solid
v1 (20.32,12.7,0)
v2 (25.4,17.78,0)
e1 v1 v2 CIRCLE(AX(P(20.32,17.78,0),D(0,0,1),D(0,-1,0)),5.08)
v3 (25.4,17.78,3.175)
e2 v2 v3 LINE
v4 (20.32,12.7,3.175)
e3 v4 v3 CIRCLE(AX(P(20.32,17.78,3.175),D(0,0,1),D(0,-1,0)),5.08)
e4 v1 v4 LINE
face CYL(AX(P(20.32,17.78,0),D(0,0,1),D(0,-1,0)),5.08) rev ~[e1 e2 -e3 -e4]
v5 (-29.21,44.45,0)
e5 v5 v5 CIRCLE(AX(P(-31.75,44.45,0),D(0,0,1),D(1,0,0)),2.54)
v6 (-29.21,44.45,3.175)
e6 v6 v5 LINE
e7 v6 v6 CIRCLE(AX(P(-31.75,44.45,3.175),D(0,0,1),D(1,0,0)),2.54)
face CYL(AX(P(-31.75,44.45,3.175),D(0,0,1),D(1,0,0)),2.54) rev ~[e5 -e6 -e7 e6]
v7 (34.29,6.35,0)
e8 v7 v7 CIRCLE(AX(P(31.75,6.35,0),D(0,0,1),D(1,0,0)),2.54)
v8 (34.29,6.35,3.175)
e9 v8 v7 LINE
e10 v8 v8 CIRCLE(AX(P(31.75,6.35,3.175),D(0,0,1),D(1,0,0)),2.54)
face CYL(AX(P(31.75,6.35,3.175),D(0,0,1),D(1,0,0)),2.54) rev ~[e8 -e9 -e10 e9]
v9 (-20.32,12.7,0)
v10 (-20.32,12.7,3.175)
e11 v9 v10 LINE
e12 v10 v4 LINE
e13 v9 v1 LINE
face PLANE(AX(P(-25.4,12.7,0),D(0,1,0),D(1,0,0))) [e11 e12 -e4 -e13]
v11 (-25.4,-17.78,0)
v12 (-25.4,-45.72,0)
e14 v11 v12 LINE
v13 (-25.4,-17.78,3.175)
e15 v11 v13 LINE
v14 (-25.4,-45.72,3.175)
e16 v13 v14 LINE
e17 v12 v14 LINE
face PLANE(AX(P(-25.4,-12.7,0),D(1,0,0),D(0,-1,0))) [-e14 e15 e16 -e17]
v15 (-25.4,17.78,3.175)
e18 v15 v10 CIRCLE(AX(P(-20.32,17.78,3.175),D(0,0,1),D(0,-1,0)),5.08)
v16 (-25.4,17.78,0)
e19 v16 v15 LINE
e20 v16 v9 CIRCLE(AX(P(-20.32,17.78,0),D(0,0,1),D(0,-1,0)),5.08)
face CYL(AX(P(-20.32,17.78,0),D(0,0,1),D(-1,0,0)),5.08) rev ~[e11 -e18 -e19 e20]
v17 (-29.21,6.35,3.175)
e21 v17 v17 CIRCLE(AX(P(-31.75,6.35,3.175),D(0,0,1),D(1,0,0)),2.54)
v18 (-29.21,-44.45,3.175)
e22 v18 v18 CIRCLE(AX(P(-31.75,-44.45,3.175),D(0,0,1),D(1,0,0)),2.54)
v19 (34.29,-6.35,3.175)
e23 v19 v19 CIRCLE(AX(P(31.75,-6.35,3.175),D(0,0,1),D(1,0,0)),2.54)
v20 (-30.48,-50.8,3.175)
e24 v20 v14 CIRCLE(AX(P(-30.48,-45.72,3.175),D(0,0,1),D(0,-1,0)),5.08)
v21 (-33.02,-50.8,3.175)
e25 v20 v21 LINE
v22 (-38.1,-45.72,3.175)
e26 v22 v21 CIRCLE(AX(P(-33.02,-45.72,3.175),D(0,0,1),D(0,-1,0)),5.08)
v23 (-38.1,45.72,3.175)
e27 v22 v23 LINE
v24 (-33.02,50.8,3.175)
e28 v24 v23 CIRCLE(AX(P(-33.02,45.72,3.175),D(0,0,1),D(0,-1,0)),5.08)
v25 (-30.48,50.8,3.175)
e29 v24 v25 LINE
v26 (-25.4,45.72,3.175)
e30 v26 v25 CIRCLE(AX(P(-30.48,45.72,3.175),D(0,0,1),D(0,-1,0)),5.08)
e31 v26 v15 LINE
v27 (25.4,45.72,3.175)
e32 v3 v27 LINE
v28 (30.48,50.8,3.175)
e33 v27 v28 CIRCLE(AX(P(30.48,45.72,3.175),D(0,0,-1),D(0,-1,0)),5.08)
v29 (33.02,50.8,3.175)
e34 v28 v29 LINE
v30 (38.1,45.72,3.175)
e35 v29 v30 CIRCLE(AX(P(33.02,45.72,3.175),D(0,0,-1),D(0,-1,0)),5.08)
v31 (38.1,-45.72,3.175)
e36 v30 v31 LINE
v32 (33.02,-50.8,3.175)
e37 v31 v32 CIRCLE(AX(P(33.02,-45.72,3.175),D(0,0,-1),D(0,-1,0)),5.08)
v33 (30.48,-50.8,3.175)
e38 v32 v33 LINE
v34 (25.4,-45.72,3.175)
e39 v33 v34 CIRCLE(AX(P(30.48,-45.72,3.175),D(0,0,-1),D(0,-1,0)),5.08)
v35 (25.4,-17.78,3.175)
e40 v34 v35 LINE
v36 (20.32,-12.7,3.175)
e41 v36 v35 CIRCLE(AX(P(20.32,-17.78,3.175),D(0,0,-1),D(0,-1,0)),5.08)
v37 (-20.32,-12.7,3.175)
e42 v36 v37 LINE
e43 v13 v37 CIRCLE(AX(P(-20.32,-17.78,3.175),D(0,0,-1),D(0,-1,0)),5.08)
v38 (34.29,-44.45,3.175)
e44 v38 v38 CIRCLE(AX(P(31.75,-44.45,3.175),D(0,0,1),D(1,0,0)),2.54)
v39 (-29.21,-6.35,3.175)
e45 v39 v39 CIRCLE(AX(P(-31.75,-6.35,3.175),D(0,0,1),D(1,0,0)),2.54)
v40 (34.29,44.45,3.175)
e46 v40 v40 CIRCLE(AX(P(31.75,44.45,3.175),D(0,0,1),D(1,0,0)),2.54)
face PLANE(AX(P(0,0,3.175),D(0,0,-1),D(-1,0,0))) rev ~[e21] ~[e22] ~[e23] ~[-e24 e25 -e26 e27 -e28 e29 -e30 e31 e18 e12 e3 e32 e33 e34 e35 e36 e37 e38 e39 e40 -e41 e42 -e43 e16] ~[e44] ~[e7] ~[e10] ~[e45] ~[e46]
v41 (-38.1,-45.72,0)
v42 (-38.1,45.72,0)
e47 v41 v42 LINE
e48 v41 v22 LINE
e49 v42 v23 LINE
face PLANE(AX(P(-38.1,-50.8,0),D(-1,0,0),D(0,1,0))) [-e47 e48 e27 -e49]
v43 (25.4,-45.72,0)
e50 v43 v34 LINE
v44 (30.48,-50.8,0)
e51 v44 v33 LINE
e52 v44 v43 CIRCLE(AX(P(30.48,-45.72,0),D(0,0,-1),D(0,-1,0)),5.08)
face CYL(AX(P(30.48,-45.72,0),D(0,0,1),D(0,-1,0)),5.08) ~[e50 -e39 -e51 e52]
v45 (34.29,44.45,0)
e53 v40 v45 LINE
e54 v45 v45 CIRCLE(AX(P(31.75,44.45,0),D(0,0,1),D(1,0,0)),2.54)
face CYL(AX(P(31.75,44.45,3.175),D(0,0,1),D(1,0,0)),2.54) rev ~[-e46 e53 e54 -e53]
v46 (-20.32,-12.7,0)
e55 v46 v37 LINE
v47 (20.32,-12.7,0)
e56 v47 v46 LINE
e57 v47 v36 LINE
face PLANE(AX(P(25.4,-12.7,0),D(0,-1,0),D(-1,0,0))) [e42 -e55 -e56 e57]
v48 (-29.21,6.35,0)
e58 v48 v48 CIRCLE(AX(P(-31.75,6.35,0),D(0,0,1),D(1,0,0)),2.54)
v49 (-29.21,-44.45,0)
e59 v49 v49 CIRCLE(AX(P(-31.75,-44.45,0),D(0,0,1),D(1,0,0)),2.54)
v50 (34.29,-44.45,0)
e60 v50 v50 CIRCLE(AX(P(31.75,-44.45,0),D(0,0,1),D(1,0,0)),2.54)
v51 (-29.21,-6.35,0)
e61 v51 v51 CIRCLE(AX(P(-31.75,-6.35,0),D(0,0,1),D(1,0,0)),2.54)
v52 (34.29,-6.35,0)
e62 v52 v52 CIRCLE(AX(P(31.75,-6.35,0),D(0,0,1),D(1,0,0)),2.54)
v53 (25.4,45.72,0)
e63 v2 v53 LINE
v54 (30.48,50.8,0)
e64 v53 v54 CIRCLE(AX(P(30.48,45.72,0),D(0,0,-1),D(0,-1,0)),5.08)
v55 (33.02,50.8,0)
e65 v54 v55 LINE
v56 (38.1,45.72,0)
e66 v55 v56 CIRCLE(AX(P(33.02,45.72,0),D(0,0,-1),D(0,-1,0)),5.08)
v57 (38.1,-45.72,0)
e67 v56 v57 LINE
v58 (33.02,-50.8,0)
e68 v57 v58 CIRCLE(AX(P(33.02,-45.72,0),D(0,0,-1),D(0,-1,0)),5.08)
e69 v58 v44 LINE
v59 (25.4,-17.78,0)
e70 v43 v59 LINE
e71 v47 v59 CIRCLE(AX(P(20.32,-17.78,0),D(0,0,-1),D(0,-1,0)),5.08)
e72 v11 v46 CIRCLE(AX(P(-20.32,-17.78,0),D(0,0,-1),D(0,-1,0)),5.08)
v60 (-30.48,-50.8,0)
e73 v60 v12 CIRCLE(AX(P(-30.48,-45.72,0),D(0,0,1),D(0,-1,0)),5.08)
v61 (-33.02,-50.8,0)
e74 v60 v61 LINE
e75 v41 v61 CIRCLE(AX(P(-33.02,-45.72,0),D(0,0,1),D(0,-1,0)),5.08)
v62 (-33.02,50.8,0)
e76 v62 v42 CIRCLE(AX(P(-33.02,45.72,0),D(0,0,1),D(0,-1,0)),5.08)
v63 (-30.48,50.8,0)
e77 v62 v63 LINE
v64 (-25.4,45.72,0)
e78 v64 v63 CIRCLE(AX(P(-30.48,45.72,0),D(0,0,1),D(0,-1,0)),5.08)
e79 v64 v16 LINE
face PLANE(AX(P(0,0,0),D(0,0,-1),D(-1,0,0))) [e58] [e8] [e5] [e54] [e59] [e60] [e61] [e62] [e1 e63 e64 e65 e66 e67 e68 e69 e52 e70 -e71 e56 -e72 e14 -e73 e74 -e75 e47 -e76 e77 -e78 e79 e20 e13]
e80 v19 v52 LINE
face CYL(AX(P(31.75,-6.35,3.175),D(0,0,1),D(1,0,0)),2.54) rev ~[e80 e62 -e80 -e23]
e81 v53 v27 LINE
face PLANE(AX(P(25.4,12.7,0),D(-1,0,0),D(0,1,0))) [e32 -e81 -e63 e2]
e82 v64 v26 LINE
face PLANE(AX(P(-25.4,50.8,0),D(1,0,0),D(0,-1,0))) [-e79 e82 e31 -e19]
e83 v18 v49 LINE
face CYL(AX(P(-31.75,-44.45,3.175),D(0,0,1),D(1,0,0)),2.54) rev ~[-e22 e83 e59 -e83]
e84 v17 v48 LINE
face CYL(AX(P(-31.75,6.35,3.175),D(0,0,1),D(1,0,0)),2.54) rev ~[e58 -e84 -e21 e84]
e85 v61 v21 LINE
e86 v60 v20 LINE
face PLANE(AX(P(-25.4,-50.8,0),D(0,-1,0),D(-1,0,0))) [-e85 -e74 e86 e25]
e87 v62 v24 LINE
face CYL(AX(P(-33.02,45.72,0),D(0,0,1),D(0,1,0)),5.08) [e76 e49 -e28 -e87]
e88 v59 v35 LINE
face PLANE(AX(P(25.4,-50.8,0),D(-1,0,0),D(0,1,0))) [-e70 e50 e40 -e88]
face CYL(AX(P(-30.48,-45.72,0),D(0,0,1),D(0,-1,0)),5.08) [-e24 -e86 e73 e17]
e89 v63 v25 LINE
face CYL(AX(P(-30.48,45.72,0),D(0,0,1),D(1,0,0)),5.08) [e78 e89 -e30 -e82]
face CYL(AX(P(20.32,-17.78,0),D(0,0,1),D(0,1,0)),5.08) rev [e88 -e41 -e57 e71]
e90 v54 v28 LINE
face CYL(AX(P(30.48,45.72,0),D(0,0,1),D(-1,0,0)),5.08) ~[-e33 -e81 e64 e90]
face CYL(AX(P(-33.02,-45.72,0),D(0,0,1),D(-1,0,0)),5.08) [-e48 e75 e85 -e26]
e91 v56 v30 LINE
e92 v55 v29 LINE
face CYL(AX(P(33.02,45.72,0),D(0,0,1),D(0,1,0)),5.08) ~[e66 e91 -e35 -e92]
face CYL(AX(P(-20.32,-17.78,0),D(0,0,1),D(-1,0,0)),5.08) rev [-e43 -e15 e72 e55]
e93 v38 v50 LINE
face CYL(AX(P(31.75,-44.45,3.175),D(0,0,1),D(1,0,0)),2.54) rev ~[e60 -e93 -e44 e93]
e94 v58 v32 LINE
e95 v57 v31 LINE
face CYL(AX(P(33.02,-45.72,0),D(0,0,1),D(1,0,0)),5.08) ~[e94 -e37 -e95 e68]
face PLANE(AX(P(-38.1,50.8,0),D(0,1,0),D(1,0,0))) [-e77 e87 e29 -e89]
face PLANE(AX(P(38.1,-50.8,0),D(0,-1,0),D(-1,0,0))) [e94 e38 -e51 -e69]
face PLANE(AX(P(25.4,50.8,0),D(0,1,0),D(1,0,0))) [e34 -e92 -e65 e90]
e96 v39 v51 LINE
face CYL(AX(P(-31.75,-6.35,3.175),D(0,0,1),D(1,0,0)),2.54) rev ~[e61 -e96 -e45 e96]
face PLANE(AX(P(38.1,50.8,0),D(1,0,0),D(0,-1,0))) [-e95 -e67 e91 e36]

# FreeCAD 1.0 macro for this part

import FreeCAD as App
import Part
import Sketcher

V = App.Vector
Q = App.Units.Quantity


def edges_at(feature, points):
    """Names of the edges that pass closest to the given points."""
    edges = feature.Shape.Edges
    near = lambda p: min(range(len(edges)), key=lambda i: edges[i].distToShape(Part.Vertex(*p))[0])
    return sorted({f"Edge{near(p) + 1}" for p in points})

doc = App.newDocument("Part")
body = doc.addObject("PartDesign::Body", "Body")

sketch1 = body.newObject("Sketcher::SketchObject", "Sketch")
sketch1.AttachmentSupport = (doc.getObject("XY_Plane"), [""])
sketch1.MapMode = "FlatFace"
sketch1.addGeometry(Part.LineSegment(V(-25.4, 50.8, 0), V(-38.1, 50.8, 0)), False)
sketch1.addGeometry(Part.LineSegment(V(-38.1, 50.8, 0), V(-38.1, -50.8, 0)), False)
sketch1.addGeometry(Part.LineSegment(V(-38.1, -50.8, 0), V(-25.4, -50.8, 0)), False)
sketch1.addGeometry(Part.LineSegment(V(-25.4, -50.8, 0), V(-25.4, -12.7, 0)), False)
sketch1.addGeometry(Part.LineSegment(V(-25.4, -12.7, 0), V(25.4, -12.7, 0)), False)
sketch1.addGeometry(Part.LineSegment(V(25.4, -12.7, 0), V(25.4, -50.8, 0)), False)
sketch1.addGeometry(Part.LineSegment(V(25.4, -50.8, 0), V(38.1, -50.8, 0)), False)
sketch1.addGeometry(Part.LineSegment(V(38.1, -50.8, 0), V(38.1, 50.8, 0)), False)
sketch1.addGeometry(Part.LineSegment(V(38.1, 50.8, 0), V(25.4, 50.8, 0)), False)
sketch1.addGeometry(Part.LineSegment(V(25.4, 50.8, 0), V(25.4, 12.7, 0)), False)
sketch1.addGeometry(Part.LineSegment(V(25.4, 12.7, 0), V(-25.4, 12.7, 0)), False)
sketch1.addGeometry(Part.LineSegment(V(-25.4, 12.7, 0), V(-25.4, 50.8, 0)), False)
sketch1.addConstraint(Sketcher.Constraint("Coincident", 0, 2, 1, 1))
sketch1.addConstraint(Sketcher.Constraint("Coincident", 1, 2, 2, 1))
sketch1.addConstraint(Sketcher.Constraint("Coincident", 2, 2, 3, 1))
sketch1.addConstraint(Sketcher.Constraint("Coincident", 3, 2, 4, 1))
sketch1.addConstraint(Sketcher.Constraint("Coincident", 4, 2, 5, 1))
sketch1.addConstraint(Sketcher.Constraint("Coincident", 5, 2, 6, 1))
sketch1.addConstraint(Sketcher.Constraint("Coincident", 6, 2, 7, 1))
sketch1.addConstraint(Sketcher.Constraint("Coincident", 7, 2, 8, 1))
sketch1.addConstraint(Sketcher.Constraint("Coincident", 8, 2, 9, 1))
sketch1.addConstraint(Sketcher.Constraint("Coincident", 9, 2, 10, 1))
sketch1.addConstraint(Sketcher.Constraint("Coincident", 10, 2, 11, 1))
sketch1.addConstraint(Sketcher.Constraint("Coincident", 11, 2, 0, 1))
sketch1.addConstraint(Sketcher.Constraint("Horizontal", 0))
sketch1.addConstraint(Sketcher.Constraint("Vertical", 1))
sketch1.addConstraint(Sketcher.Constraint("Horizontal", 2))
sketch1.addConstraint(Sketcher.Constraint("Vertical", 3))
sketch1.addConstraint(Sketcher.Constraint("Horizontal", 4))
sketch1.addConstraint(Sketcher.Constraint("Vertical", 5))
sketch1.addConstraint(Sketcher.Constraint("Horizontal", 6))
sketch1.addConstraint(Sketcher.Constraint("Vertical", 7))
sketch1.addConstraint(Sketcher.Constraint("Horizontal", 8))
sketch1.addConstraint(Sketcher.Constraint("Vertical", 9))
sketch1.addConstraint(Sketcher.Constraint("Horizontal", 10))
sketch1.addConstraint(Sketcher.Constraint("Vertical", 11))
sketch1.addConstraint(Sketcher.Constraint("Symmetric", 0, 2, 6, 2, -1, 1))
sketch1.addConstraint(Sketcher.Constraint("Symmetric", 2, 2, 8, 2, -1, 1))
sketch1.addConstraint(Sketcher.Constraint("Symmetric", 4, 2, 10, 2, -1, 1))
sketch1.addConstraint(Sketcher.Constraint("Symmetric", 2, 2, 5, 2, -2))
sketch1.addConstraint(Sketcher.Constraint("DistanceX", 4, 1, 4, 2, Q("2 in")))
sketch1.addConstraint(Sketcher.Constraint("DistanceY", 1, 2, 1, 1, Q("4 in")))
sketch1.addConstraint(Sketcher.Constraint("DistanceX", 0, 2, 0, 1, Q("0.5 in")))
sketch1.addConstraint(Sketcher.Constraint("DistanceY", 3, 1, 3, 2, Q("1.5 in")))
pad1 = body.newObject("PartDesign::Pad", "Pad")
pad1.Profile = sketch1
pad1.Length = Q("0.125 in")

sketch2 = body.newObject("Sketcher::SketchObject", "Sketch001")
sketch2.AttachmentSupport = (doc.getObject("XY_Plane"), [""])
sketch2.MapMode = "FlatFace"
sketch2.AttachmentOffset = App.Placement(V(0, 0, 0.125 * 25.4), App.Rotation())
sketch2.addGeometry(Part.Circle(V(-31.75, 44.45, 0), V(0, 0, 1), 2.54), False)
sketch2.addGeometry(Part.Circle(V(-31.75, 6.35, 0), V(0, 0, 1), 2.54), False)
sketch2.addGeometry(Part.Circle(V(31.75, 6.35, 0), V(0, 0, 1), 2.54), False)
sketch2.addGeometry(Part.Circle(V(31.75, 44.45, 0), V(0, 0, 1), 2.54), False)
sketch2.addGeometry(Part.Circle(V(-31.75, -6.35, 0), V(0, 0, 1), 2.54), False)
sketch2.addGeometry(Part.Circle(V(31.75, -6.35, 0), V(0, 0, 1), 2.54), False)
sketch2.addGeometry(Part.Circle(V(31.75, -44.45, 0), V(0, 0, 1), 2.54), False)
sketch2.addGeometry(Part.Circle(V(-31.75, -44.45, 0), V(0, 0, 1), 2.54), False)
sketch2.addConstraint(Sketcher.Constraint("Equal", 0, 1))
sketch2.addConstraint(Sketcher.Constraint("Equal", 1, 2))
sketch2.addConstraint(Sketcher.Constraint("Equal", 2, 3))
sketch2.addConstraint(Sketcher.Constraint("Equal", 3, 4))
sketch2.addConstraint(Sketcher.Constraint("Equal", 4, 5))
sketch2.addConstraint(Sketcher.Constraint("Equal", 5, 6))
sketch2.addConstraint(Sketcher.Constraint("Equal", 6, 7))
sketch2.addConstraint(Sketcher.Constraint("Symmetric", 2, 3, 4, 3, -1, 1))
sketch2.addConstraint(Sketcher.Constraint("Symmetric", 1, 3, 5, 3, -1, 1))
sketch2.addConstraint(Sketcher.Constraint("Symmetric", 0, 3, 6, 3, -1, 1))
sketch2.addConstraint(Sketcher.Constraint("Symmetric", 3, 3, 7, 3, -1, 1))
sketch2.addConstraint(Sketcher.Constraint("Symmetric", 1, 3, 2, 3, -2))
sketch2.addConstraint(Sketcher.Constraint("Symmetric", 0, 3, 3, 3, -2))
sketch2.addConstraint(Sketcher.Constraint("Vertical", 0, 3, 1, 3))
sketch2.addConstraint(Sketcher.Constraint("Diameter", 0, Q("0.2 in")))
sketch2.addConstraint(Sketcher.Constraint("DistanceY", 4, 3, 0, 3, Q("2 in")))
sketch2.addConstraint(Sketcher.Constraint("DistanceY", 1, 3, 0, 3, Q("1.5 in")))
sketch2.addConstraint(Sketcher.Constraint("DistanceX", 1, 3, 2, 3, Q("2.5 in")))
pocket1 = body.newObject("PartDesign::Pocket", "Pocket")
pocket1.Profile = sketch2
pocket1.Type = "ThroughAll"
doc.recompute()

fillet = body.newObject("PartDesign::Fillet", "Fillet")
fillet.Base = (pocket1, edges_at(pocket1, [
    (25.4, -12.7, 1.587),
    (-25.4, -12.7, 1.587),
    (-25.4, 12.7, 1.587),
    (25.4, 12.7, 1.587),
]))
fillet.Radius = Q("0.2 in")
doc.recompute()

fillet2 = body.newObject("PartDesign::Fillet", "Fillet001")
fillet2.Base = (fillet, edges_at(fillet, [
    (38.1, 50.8, 1.587),
    (38.1, -50.8, 1.587),
    (25.4, -50.8, 1.587),
    (-25.4, -50.8, 1.587),
    (-38.1, -50.8, 1.587),
    (-38.1, 50.8, 1.587),
    (-25.4, 50.8, 1.587),
    (25.4, 50.8, 1.587),
]))
fillet2.Radius = Q("0.2 in")

doc.recompute()
